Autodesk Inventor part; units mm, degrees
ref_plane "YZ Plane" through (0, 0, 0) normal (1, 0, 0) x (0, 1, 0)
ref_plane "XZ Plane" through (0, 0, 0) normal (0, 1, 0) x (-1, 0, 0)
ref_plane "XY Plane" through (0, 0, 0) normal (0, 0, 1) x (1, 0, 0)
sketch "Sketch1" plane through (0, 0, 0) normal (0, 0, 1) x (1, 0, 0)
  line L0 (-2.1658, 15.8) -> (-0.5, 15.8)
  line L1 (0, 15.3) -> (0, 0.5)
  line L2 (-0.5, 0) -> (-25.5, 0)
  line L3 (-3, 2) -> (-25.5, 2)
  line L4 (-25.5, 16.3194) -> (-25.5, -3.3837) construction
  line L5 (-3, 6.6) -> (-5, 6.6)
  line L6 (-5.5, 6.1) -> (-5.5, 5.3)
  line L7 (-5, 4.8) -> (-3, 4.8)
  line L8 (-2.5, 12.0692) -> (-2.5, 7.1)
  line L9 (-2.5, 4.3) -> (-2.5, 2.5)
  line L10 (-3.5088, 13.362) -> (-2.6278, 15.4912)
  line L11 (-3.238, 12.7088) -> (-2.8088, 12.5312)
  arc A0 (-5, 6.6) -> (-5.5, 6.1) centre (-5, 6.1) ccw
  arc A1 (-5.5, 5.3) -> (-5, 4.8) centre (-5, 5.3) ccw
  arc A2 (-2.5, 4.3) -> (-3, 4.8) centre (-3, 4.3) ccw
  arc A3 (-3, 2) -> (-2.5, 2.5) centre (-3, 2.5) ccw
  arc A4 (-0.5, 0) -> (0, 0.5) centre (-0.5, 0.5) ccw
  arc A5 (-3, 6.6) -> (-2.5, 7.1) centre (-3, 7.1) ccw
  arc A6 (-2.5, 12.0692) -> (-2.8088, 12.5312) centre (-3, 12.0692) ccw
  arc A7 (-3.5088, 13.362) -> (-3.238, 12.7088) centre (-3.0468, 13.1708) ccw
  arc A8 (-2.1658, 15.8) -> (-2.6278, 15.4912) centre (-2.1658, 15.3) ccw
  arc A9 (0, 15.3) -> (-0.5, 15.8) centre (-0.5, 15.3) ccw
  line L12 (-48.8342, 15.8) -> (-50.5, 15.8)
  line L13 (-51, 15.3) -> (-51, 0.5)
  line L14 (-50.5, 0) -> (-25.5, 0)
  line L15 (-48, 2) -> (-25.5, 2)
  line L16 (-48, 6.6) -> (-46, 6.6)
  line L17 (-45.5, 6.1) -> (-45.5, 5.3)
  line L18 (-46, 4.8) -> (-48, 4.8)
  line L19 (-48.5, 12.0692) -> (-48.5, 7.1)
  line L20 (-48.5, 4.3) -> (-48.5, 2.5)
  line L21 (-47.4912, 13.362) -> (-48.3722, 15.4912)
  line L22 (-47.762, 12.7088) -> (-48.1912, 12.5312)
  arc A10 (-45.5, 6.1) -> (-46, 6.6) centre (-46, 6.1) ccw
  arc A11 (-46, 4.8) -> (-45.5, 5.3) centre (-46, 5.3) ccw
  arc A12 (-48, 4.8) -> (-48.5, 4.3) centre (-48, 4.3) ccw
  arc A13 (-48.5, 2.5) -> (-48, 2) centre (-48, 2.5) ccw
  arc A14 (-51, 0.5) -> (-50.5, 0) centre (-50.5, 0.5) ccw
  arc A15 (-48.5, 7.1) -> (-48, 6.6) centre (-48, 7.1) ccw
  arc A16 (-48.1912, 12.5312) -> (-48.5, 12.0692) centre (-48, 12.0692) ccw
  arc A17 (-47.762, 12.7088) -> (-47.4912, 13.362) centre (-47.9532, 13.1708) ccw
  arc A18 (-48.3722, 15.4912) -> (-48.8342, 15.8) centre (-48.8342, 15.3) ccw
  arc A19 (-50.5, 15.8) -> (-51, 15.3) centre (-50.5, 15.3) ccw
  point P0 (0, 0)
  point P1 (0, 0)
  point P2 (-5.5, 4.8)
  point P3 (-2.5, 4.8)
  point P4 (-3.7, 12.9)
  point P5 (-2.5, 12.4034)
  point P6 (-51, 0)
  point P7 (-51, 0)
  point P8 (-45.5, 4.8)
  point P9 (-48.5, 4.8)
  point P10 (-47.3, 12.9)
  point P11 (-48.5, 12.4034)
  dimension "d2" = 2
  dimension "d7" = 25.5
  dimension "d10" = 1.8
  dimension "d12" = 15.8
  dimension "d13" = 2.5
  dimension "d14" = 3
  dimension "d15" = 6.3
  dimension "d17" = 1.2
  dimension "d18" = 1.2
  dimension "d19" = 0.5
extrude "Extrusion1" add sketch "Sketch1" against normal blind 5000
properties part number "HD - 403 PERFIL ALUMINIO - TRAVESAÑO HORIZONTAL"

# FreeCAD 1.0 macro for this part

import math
import FreeCAD as App
import Part
import Sketcher
Q = App.Units.Quantity

doc = App.newDocument("Part")
body = doc.addObject("PartDesign::Body", "Body")

# Sketch on XY plane
sketch1 = doc.addObject("Sketcher::SketchObject", "Sketch")
body.addObject(sketch1)
sketch1.AttachmentSupport = (doc.XY_Plane, [""])
sketch1.MapMode = "FlatFace"
sketch1.addGeometry(Part.LineSegment(App.Vector(-0.5, 15.8, 0), App.Vector(-2.1658, 15.8, 0)), False)
sketch1.addGeometry(Part.ArcOfCircle(Part.Circle(App.Vector(-2.1658, 15.3, 0), App.Vector(0, 0, 1), 0.5), math.radians(90), math.radians(157.517645)), False)
sketch1.addGeometry(Part.LineSegment(App.Vector(-2.6278, 15.4912, 0), App.Vector(-3.5088, 13.362, 0)), False)
sketch1.addGeometry(Part.ArcOfCircle(Part.Circle(App.Vector(-3.0468, 13.1708, 0), App.Vector(0, 0, 1), 0.500001), math.radians(157.517645), math.radians(247.517645)), False)
sketch1.addGeometry(Part.LineSegment(App.Vector(-3.238, 12.7088, 0), App.Vector(-2.8088, 12.5312, 0)), False)
sketch1.addGeometry(Part.ArcOfCircle(Part.Circle(App.Vector(-3, 12.0692, 0), App.Vector(0, 0, 1), 0.5), math.radians(0), math.radians(67.517645)), False)
sketch1.addGeometry(Part.LineSegment(App.Vector(-2.5, 12.0692, 0), App.Vector(-2.5, 7.1, 0)), False)
sketch1.addGeometry(Part.ArcOfCircle(Part.Circle(App.Vector(-3, 7.1, 0), App.Vector(0, 0, 1), 0.5), math.radians(-90), math.radians(0)), False)
sketch1.addGeometry(Part.LineSegment(App.Vector(-3, 6.6, 0), App.Vector(-5, 6.6, 0)), False)
sketch1.addGeometry(Part.ArcOfCircle(Part.Circle(App.Vector(-5, 6.1, 0), App.Vector(0, 0, 1), 0.5), math.radians(90), math.radians(180)), False)
sketch1.addGeometry(Part.LineSegment(App.Vector(-5.5, 6.1, 0), App.Vector(-5.5, 5.3, 0)), False)
sketch1.addGeometry(Part.ArcOfCircle(Part.Circle(App.Vector(-5, 5.3, 0), App.Vector(0, 0, 1), 0.5), math.radians(180), math.radians(270)), False)
sketch1.addGeometry(Part.LineSegment(App.Vector(-5, 4.8, 0), App.Vector(-3, 4.8, 0)), False)
sketch1.addGeometry(Part.ArcOfCircle(Part.Circle(App.Vector(-3, 4.3, 0), App.Vector(0, 0, 1), 0.5), math.radians(0), math.radians(90)), False)
sketch1.addGeometry(Part.LineSegment(App.Vector(-2.5, 4.3, 0), App.Vector(-2.5, 2.5, 0)), False)
sketch1.addGeometry(Part.ArcOfCircle(Part.Circle(App.Vector(-3, 2.5, 0), App.Vector(0, 0, 1), 0.5), math.radians(-90), math.radians(0)), False)
sketch1.addGeometry(Part.LineSegment(App.Vector(-3, 2, 0), App.Vector(-48, 2, 0)), False)
sketch1.addGeometry(Part.ArcOfCircle(Part.Circle(App.Vector(-48, 2.5, 0), App.Vector(0, 0, 1), 0.5), math.radians(180), math.radians(270)), False)
sketch1.addGeometry(Part.LineSegment(App.Vector(-48.5, 2.5, 0), App.Vector(-48.5, 4.3, 0)), False)
sketch1.addGeometry(Part.ArcOfCircle(Part.Circle(App.Vector(-48, 4.3, 0), App.Vector(0, 0, 1), 0.5), math.radians(90), math.radians(180)), False)
sketch1.addGeometry(Part.LineSegment(App.Vector(-48, 4.8, 0), App.Vector(-46, 4.8, 0)), False)
sketch1.addGeometry(Part.ArcOfCircle(Part.Circle(App.Vector(-46, 5.3, 0), App.Vector(0, 0, 1), 0.5), math.radians(-90), math.radians(0)), False)
sketch1.addGeometry(Part.LineSegment(App.Vector(-45.5, 5.3, 0), App.Vector(-45.5, 6.1, 0)), False)
sketch1.addGeometry(Part.ArcOfCircle(Part.Circle(App.Vector(-46, 6.1, 0), App.Vector(0, 0, 1), 0.5), math.radians(0), math.radians(90)), False)
sketch1.addGeometry(Part.LineSegment(App.Vector(-46, 6.6, 0), App.Vector(-48, 6.6, 0)), False)
sketch1.addGeometry(Part.ArcOfCircle(Part.Circle(App.Vector(-48, 7.1, 0), App.Vector(0, 0, 1), 0.5), math.radians(180), math.radians(270)), False)
sketch1.addGeometry(Part.LineSegment(App.Vector(-48.5, 7.1, 0), App.Vector(-48.5, 12.0692, 0)), False)
sketch1.addGeometry(Part.ArcOfCircle(Part.Circle(App.Vector(-48, 12.0692, 0), App.Vector(0, 0, 1), 0.500001), math.radians(112.482355), math.radians(180)), False)
sketch1.addGeometry(Part.LineSegment(App.Vector(-48.1912, 12.5312, 0), App.Vector(-47.762, 12.7088, 0)), False)
sketch1.addGeometry(Part.ArcOfCircle(Part.Circle(App.Vector(-47.9532, 13.1708, 0), App.Vector(0, 0, 1), 0.500001), math.radians(-67.517645), math.radians(22.482355)), False)
sketch1.addGeometry(Part.LineSegment(App.Vector(-47.4912, 13.362, 0), App.Vector(-48.3722, 15.4912, 0)), False)
sketch1.addGeometry(Part.ArcOfCircle(Part.Circle(App.Vector(-48.8342, 15.3, 0), App.Vector(0, 0, 1), 0.500001), math.radians(22.482355), math.radians(90)), False)
sketch1.addGeometry(Part.LineSegment(App.Vector(-48.8342, 15.8, 0), App.Vector(-50.5, 15.8, 0)), False)
sketch1.addGeometry(Part.ArcOfCircle(Part.Circle(App.Vector(-50.5, 15.3, 0), App.Vector(0, 0, 1), 0.5), math.radians(90), math.radians(180)), False)
sketch1.addGeometry(Part.LineSegment(App.Vector(-51, 15.3, 0), App.Vector(-51, 0.5, 0)), False)
sketch1.addGeometry(Part.ArcOfCircle(Part.Circle(App.Vector(-50.5, 0.5, 0), App.Vector(0, 0, 1), 0.5), math.radians(180), math.radians(270)), False)
sketch1.addGeometry(Part.LineSegment(App.Vector(-50.5, 0, 0), App.Vector(-0.5, 0, 0)), False)
sketch1.addGeometry(Part.ArcOfCircle(Part.Circle(App.Vector(-0.5, 0.5, 0), App.Vector(0, 0, 1), 0.5), math.radians(-90), math.radians(0)), False)
sketch1.addGeometry(Part.LineSegment(App.Vector(0, 0.5, 0), App.Vector(0, 15.3, 0)), False)
sketch1.addGeometry(Part.ArcOfCircle(Part.Circle(App.Vector(-0.5, 15.3, 0), App.Vector(0, 0, 1), 0.5), math.radians(0), math.radians(90)), False)
sketch1.addConstraint(Sketcher.Constraint("Tangent", 0, 2, 1, 1))
sketch1.addConstraint(Sketcher.Constraint("Tangent", 1, 2, 2, 1))
sketch1.addConstraint(Sketcher.Constraint("Tangent", 2, 2, 3, 1))
sketch1.addConstraint(Sketcher.Constraint("Tangent", 3, 2, 4, 1))
sketch1.addConstraint(Sketcher.Constraint("Tangent", 4, 2, 5, 2))
sketch1.addConstraint(Sketcher.Constraint("Tangent", 5, 1, 6, 1))
sketch1.addConstraint(Sketcher.Constraint("Tangent", 6, 2, 7, 2))
sketch1.addConstraint(Sketcher.Constraint("Tangent", 7, 1, 8, 1))
sketch1.addConstraint(Sketcher.Constraint("Tangent", 8, 2, 9, 1))
sketch1.addConstraint(Sketcher.Constraint("Tangent", 9, 2, 10, 1))
sketch1.addConstraint(Sketcher.Constraint("Tangent", 10, 2, 11, 1))
sketch1.addConstraint(Sketcher.Constraint("Tangent", 11, 2, 12, 1))
sketch1.addConstraint(Sketcher.Constraint("Tangent", 12, 2, 13, 2))
sketch1.addConstraint(Sketcher.Constraint("Tangent", 13, 1, 14, 1))
sketch1.addConstraint(Sketcher.Constraint("Tangent", 14, 2, 15, 2))
sketch1.addConstraint(Sketcher.Constraint("Tangent", 15, 1, 16, 1))
sketch1.addConstraint(Sketcher.Constraint("Tangent", 16, 2, 17, 2))
sketch1.addConstraint(Sketcher.Constraint("Tangent", 17, 1, 18, 1))
sketch1.addConstraint(Sketcher.Constraint("Tangent", 18, 2, 19, 2))
sketch1.addConstraint(Sketcher.Constraint("Tangent", 19, 1, 20, 1))
sketch1.addConstraint(Sketcher.Constraint("Tangent", 20, 2, 21, 1))
sketch1.addConstraint(Sketcher.Constraint("Tangent", 21, 2, 22, 1))
sketch1.addConstraint(Sketcher.Constraint("Tangent", 22, 2, 23, 1))
sketch1.addConstraint(Sketcher.Constraint("Tangent", 23, 2, 24, 1))
sketch1.addConstraint(Sketcher.Constraint("Tangent", 24, 2, 25, 2))
sketch1.addConstraint(Sketcher.Constraint("Tangent", 25, 1, 26, 1))
sketch1.addConstraint(Sketcher.Constraint("Tangent", 26, 2, 27, 2))
sketch1.addConstraint(Sketcher.Constraint("Tangent", 27, 1, 28, 1))
sketch1.addConstraint(Sketcher.Constraint("Tangent", 28, 2, 29, 1))
sketch1.addConstraint(Sketcher.Constraint("Tangent", 29, 2, 30, 1))
sketch1.addConstraint(Sketcher.Constraint("Tangent", 30, 2, 31, 1))
sketch1.addConstraint(Sketcher.Constraint("Tangent", 31, 2, 32, 1))
sketch1.addConstraint(Sketcher.Constraint("Tangent", 32, 2, 33, 1))
sketch1.addConstraint(Sketcher.Constraint("Tangent", 33, 2, 34, 1))
sketch1.addConstraint(Sketcher.Constraint("Tangent", 34, 2, 35, 1))
sketch1.addConstraint(Sketcher.Constraint("Tangent", 35, 2, 36, 1))
sketch1.addConstraint(Sketcher.Constraint("Tangent", 36, 2, 37, 1))
sketch1.addConstraint(Sketcher.Constraint("Tangent", 37, 2, 38, 1))
sketch1.addConstraint(Sketcher.Constraint("Tangent", 38, 2, 39, 1))
sketch1.addConstraint(Sketcher.Constraint("Tangent", 39, 2, 0, 1))
sketch1.addConstraint(Sketcher.Constraint("Horizontal", 0))
sketch1.addConstraint(Sketcher.Constraint("Vertical", 6))
sketch1.addConstraint(Sketcher.Constraint("Horizontal", 8))
sketch1.addConstraint(Sketcher.Constraint("Vertical", 10))
sketch1.addConstraint(Sketcher.Constraint("Horizontal", 12))
sketch1.addConstraint(Sketcher.Constraint("Vertical", 14))
sketch1.addConstraint(Sketcher.Constraint("Horizontal", 16))
sketch1.addConstraint(Sketcher.Constraint("Vertical", 18))
sketch1.addConstraint(Sketcher.Constraint("Horizontal", 20))
sketch1.addConstraint(Sketcher.Constraint("Vertical", 22))
sketch1.addConstraint(Sketcher.Constraint("Horizontal", 24))
sketch1.addConstraint(Sketcher.Constraint("Vertical", 26))
sketch1.addConstraint(Sketcher.Constraint("Horizontal", 32))
sketch1.addConstraint(Sketcher.Constraint("Vertical", 34))
sketch1.addConstraint(Sketcher.Constraint("Horizontal", 36))
sketch1.addConstraint(Sketcher.Constraint("Vertical", 38))
sketch1.addConstraint(Sketcher.Constraint("Equal", 1, 3))
sketch1.addConstraint(Sketcher.Constraint("Equal", 3, 5))
sketch1.addConstraint(Sketcher.Constraint("Equal", 5, 7))
sketch1.addConstraint(Sketcher.Constraint("Equal", 7, 9))
sketch1.addConstraint(Sketcher.Constraint("Equal", 9, 11))
sketch1.addConstraint(Sketcher.Constraint("Equal", 11, 13))
sketch1.addConstraint(Sketcher.Constraint("Equal", 13, 15))
sketch1.addConstraint(Sketcher.Constraint("Equal", 15, 17))
sketch1.addConstraint(Sketcher.Constraint("Equal", 17, 19))
sketch1.addConstraint(Sketcher.Constraint("Equal", 19, 21))
sketch1.addConstraint(Sketcher.Constraint("Equal", 21, 23))
sketch1.addConstraint(Sketcher.Constraint("Equal", 23, 25))
sketch1.addConstraint(Sketcher.Constraint("Equal", 25, 27))
sketch1.addConstraint(Sketcher.Constraint("Equal", 27, 29))
sketch1.addConstraint(Sketcher.Constraint("Equal", 29, 31))
sketch1.addConstraint(Sketcher.Constraint("Equal", 31, 33))
sketch1.addConstraint(Sketcher.Constraint("Equal", 33, 35))
sketch1.addConstraint(Sketcher.Constraint("Equal", 35, 37))
sketch1.addConstraint(Sketcher.Constraint("Equal", 37, 39))
sketch1.addConstraint(Sketcher.Constraint("PointOnObject", 35, 2, -1))
sketch1.addConstraint(Sketcher.Constraint("PointOnObject", 37, 2, -2))
sketch1.addConstraint(Sketcher.Constraint("Perpendicular", 2, 4))
sketch1.addConstraint(Sketcher.Constraint("Perpendicular", 28, 30))
sketch1.addConstraint(Sketcher.Constraint("Horizontal", 13, 3, 19, 3))
sketch1.addConstraint(Sketcher.Constraint("Horizontal", 9, 3, 23, 3))
sketch1.addConstraint(Sketcher.Constraint("Horizontal", 5, 3, 27, 3))
sketch1.addConstraint(Sketcher.Constraint("Horizontal", 3, 3, 29, 3))
sketch1.addConstraint(Sketcher.Constraint("Horizontal", 1, 3, 31, 3))
sketch1.addConstraint(Sketcher.Constraint("Horizontal", 4, 2, 27, 1))
sketch1.addConstraint(Sketcher.Constraint("Vertical", 7, 3, 13, 3))
sketch1.addConstraint(Sketcher.Constraint("Vertical", 19, 3, 25, 3))
sketch1.addConstraint(Sketcher.Constraint("Equal", 12, 20))
sketch1.addConstraint(Sketcher.Constraint("Equal", 0, 32))
sketch1.addConstraint(Sketcher.Constraint("Radius", 1, 0.5))
sketch1.addConstraint(Sketcher.Constraint("DistanceX", 8, 2, 8, 1, 2.0))
sketch1.addConstraint(Sketcher.Constraint("DistanceY", 14, 2, 14, 1, 1.8))
sketch1.addConstraint(Sketcher.Constraint("DistanceX", 5, 3, -1, 1, 3.0))
sketch1.addConstraint(Sketcher.Constraint("DistanceY", -1, 1, 15, 1, 2.0))
sketch1.addConstraint(Sketcher.Constraint("DistanceY", -1, 1, 0, 2, 15.8))
sketch1.addConstraint(Sketcher.Constraint("DistanceY", 11, 3, 7, 3, 1.8))
sketch1.addConstraint(Sketcher.Constraint("DistanceX", 16, 2, 16, 1, 45.0))
sketch1.addConstraint(Sketcher.Constraint("Angle", 4, Q("-22.4794 deg")))
sketch1.addConstraint(Sketcher.Constraint("DistanceX", 2, 2, 4, 2, 0.7))
sketch1.addConstraint(Sketcher.Constraint("DistanceX", 0, 2, 0, 1, 1.6658))
pad1 = doc.addObject("PartDesign::Pad", "Pad")
body.addObject(pad1)
pad1.Profile = sketch1
pad1.Length = 5000
pad1.Reversed = True

doc.recompute()
